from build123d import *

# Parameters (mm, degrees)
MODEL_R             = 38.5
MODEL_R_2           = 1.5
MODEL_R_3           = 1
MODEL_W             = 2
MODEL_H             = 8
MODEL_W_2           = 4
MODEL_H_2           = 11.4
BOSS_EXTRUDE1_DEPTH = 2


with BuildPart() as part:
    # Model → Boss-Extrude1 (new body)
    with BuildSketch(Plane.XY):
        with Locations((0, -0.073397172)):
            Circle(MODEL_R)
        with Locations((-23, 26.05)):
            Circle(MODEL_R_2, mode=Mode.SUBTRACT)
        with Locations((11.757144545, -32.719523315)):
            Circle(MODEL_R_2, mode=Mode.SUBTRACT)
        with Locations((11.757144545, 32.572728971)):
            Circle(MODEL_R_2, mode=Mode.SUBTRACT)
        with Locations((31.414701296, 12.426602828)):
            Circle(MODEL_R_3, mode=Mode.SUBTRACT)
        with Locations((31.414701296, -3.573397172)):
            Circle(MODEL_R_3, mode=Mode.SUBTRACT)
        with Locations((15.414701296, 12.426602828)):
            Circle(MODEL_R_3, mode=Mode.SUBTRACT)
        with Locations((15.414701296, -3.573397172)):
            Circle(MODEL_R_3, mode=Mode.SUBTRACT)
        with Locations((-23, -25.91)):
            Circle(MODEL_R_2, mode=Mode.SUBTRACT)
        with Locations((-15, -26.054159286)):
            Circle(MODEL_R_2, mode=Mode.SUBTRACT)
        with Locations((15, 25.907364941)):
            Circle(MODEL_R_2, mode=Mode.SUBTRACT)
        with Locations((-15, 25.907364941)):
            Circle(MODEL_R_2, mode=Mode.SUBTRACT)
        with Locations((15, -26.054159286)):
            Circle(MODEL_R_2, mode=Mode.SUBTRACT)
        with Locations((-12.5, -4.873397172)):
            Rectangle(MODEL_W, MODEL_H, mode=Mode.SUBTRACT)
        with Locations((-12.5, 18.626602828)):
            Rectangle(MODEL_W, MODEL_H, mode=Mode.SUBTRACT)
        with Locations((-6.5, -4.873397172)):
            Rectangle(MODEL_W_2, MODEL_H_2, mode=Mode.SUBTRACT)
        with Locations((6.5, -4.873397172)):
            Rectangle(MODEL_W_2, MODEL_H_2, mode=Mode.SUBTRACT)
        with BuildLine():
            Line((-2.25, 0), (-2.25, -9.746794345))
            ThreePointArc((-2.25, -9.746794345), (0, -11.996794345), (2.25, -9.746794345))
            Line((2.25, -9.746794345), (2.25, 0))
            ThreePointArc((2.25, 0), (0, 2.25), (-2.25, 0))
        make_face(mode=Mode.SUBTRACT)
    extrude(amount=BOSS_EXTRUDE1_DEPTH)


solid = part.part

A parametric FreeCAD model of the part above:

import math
import FreeCAD as App
import Part
import Sketcher

doc = App.newDocument("Part")
body = doc.addObject("PartDesign::Body", "Body")

# Sketch on XY plane
sketch1 = body.newObject("Sketcher::SketchObject", "Sketch")
sketch1.AttachmentSupport = (doc.getObject("XY_Plane"), [""])
sketch1.MapMode = "FlatFace"
sketch1.addGeometry([
    Part.Circle(App.Vector(0, -0.1, 0), App.Vector(0, 0, 1), 38.5),  # 0
    Part.Circle(App.Vector(-23, -25.9, 0), App.Vector(0, 0, 1), 1.5),  # 1
    Part.Circle(App.Vector(-15, -26.1, 0), App.Vector(0, 0, 1), 1.5),  # 2
    Part.LineSegment(App.Vector(-11.5, -8.9, 0), App.Vector(-13.5, -8.9, 0)),  # 3
    Part.LineSegment(App.Vector(-13.5, -8.9, 0), App.Vector(-13.5, -0.9, 0)),  # 4
    Part.LineSegment(App.Vector(-13.5, -0.9, 0), App.Vector(-11.5, -0.9, 0)),  # 5
    Part.LineSegment(App.Vector(-11.5, -0.9, 0), App.Vector(-11.5, -8.9, 0)),  # 6
    Part.LineSegment(App.Vector(-4.5, -10.6, 0), App.Vector(-8.5, -10.6, 0)),  # 7
    Part.LineSegment(App.Vector(-8.5, -10.6, 0), App.Vector(-8.5, 0.8, 0)),  # 8
    Part.LineSegment(App.Vector(-8.5, 0.8, 0), App.Vector(-4.5, 0.8, 0)),  # 9
    Part.LineSegment(App.Vector(-4.5, 0.8, 0), App.Vector(-4.5, -10.6, 0)),  # 10
    Part.LineSegment(App.Vector(-2.2, -9.7, 0), App.Vector(-2.2, 0, 0)),  # 11
    Part.ArcOfCircle(Part.Circle(App.Vector(0, 0, 0), App.Vector(0, 0, 1), 2.2), math.radians(0), math.radians(180)),  # 12
    Part.LineSegment(App.Vector(2.2, 0, 0), App.Vector(2.2, -9.7, 0)),  # 13
    Part.ArcOfCircle(Part.Circle(App.Vector(0, -9.7, 0), App.Vector(0, 0, 1), 2.2), math.radians(180), math.radians(360)),  # 14
    Part.Circle(App.Vector(11.8, -32.7, 0), App.Vector(0, 0, 1), 1.5),  # 15
    Part.Circle(App.Vector(15, -26.1, 0), App.Vector(0, 0, 1), 1.5),  # 16
    Part.LineSegment(App.Vector(8.5, -10.6, 0), App.Vector(4.5, -10.6, 0)),  # 17
    Part.LineSegment(App.Vector(4.5, -10.6, 0), App.Vector(4.5, 0.8, 0)),  # 18
    Part.LineSegment(App.Vector(4.5, 0.8, 0), App.Vector(8.5, 0.8, 0)),  # 19
    Part.LineSegment(App.Vector(8.5, 0.8, 0), App.Vector(8.5, -10.6, 0)),  # 20
    Part.Circle(App.Vector(15.4, -3.6, 0), App.Vector(0, 0, 1), 1),  # 21
    Part.Circle(App.Vector(31.4, -3.6, 0), App.Vector(0, 0, 1), 1),  # 22
    Part.LineSegment(App.Vector(-11.5, 14.6, 0), App.Vector(-13.5, 14.6, 0)),  # 23
    Part.LineSegment(App.Vector(-13.5, 14.6, 0), App.Vector(-13.5, 22.6, 0)),  # 24
    Part.LineSegment(App.Vector(-13.5, 22.6, 0), App.Vector(-11.5, 22.6, 0)),  # 25
    Part.LineSegment(App.Vector(-11.5, 22.6, 0), App.Vector(-11.5, 14.6, 0)),  # 26
    Part.Circle(App.Vector(-23, 26.1, 0), App.Vector(0, 0, 1), 1.5),  # 27
    Part.Circle(App.Vector(-15, 25.9, 0), App.Vector(0, 0, 1), 1.5),  # 28
    Part.Circle(App.Vector(15.4, 12.4, 0), App.Vector(0, 0, 1), 1),  # 29
    Part.Circle(App.Vector(31.4, 12.4, 0), App.Vector(0, 0, 1), 1),  # 30
    Part.Circle(App.Vector(15, 25.9, 0), App.Vector(0, 0, 1), 1.5),  # 31
    Part.Circle(App.Vector(11.8, 32.6, 0), App.Vector(0, 0, 1), 1.5),  # 32
], False)
sketch1.addConstraint([
    Sketcher.Constraint("Coincident", 3, 2, 4, 1),
    Sketcher.Constraint("Coincident", 4, 2, 5, 1),
    Sketcher.Constraint("Coincident", 5, 2, 6, 1),
    Sketcher.Constraint("Coincident", 6, 2, 3, 1),
    Sketcher.Constraint("Coincident", 7, 2, 8, 1),
    Sketcher.Constraint("Coincident", 8, 2, 9, 1),
    Sketcher.Constraint("Coincident", 9, 2, 10, 1),
    Sketcher.Constraint("Coincident", 10, 2, 7, 1),
    Sketcher.Constraint("Tangent", 11, 2, 12, 2),
    Sketcher.Constraint("Tangent", 12, 1, 13, 1),
    Sketcher.Constraint("Tangent", 13, 2, 14, 2),
    Sketcher.Constraint("Tangent", 14, 1, 11, 1),
    Sketcher.Constraint("Coincident", 17, 2, 18, 1),
    Sketcher.Constraint("Coincident", 18, 2, 19, 1),
    Sketcher.Constraint("Coincident", 19, 2, 20, 1),
    Sketcher.Constraint("Coincident", 20, 2, 17, 1),
    Sketcher.Constraint("Coincident", 23, 2, 24, 1),
    Sketcher.Constraint("Coincident", 24, 2, 25, 1),
    Sketcher.Constraint("Coincident", 25, 2, 26, 1),
    Sketcher.Constraint("Coincident", 26, 2, 23, 1),
    Sketcher.Constraint("Horizontal", 3),
    Sketcher.Constraint("Vertical", 4),
    Sketcher.Constraint("Horizontal", 5),
    Sketcher.Constraint("Vertical", 6),
    Sketcher.Constraint("Horizontal", 7),
    Sketcher.Constraint("Vertical", 8),
    Sketcher.Constraint("Horizontal", 9),
    Sketcher.Constraint("Vertical", 10),
    Sketcher.Constraint("Vertical", 11),
    Sketcher.Constraint("Vertical", 13),
    Sketcher.Constraint("Horizontal", 17),
    Sketcher.Constraint("Vertical", 18),
    Sketcher.Constraint("Horizontal", 19),
    Sketcher.Constraint("Vertical", 20),
    Sketcher.Constraint("Horizontal", 23),
    Sketcher.Constraint("Vertical", 24),
    Sketcher.Constraint("Horizontal", 25),
    Sketcher.Constraint("Vertical", 26),
    Sketcher.Constraint("Coincident", 12, 3, -1, 1),
    Sketcher.Constraint("Equal", 1, 2),
    Sketcher.Constraint("Equal", 2, 15),
    Sketcher.Constraint("Equal", 15, 16),
    Sketcher.Constraint("Equal", 21, 22),
    Sketcher.Constraint("Equal", 16, 27),
    Sketcher.Constraint("Equal", 27, 28),
    Sketcher.Constraint("Equal", 22, 29),
    Sketcher.Constraint("Equal", 29, 30),
    Sketcher.Constraint("Equal", 28, 31),
    Sketcher.Constraint("Equal", 31, 32),
    Sketcher.Constraint("Symmetric", 2, 3, 16, 3, -2),
    Sketcher.Constraint("Symmetric", 28, 3, 31, 3, -2),
    Sketcher.Constraint("Symmetric", 10, 2, 17, 2, -2),
    Sketcher.Constraint("Symmetric", 8, 2, 19, 2, -2),
    Sketcher.Constraint("PointOnObject", 0, 3, -2),
    Sketcher.Constraint("Horizontal", 21, 3, 22, 3),
    Sketcher.Constraint("Horizontal", 29, 3, 30, 3),
    Sketcher.Constraint("Vertical", 1, 3, 27, 3),
    Sketcher.Constraint("Vertical", 2, 3, 28, 3),
    Sketcher.Constraint("Vertical", 21, 3, 29, 3),
    Sketcher.Constraint("Vertical", 22, 3, 30, 3),
    Sketcher.Constraint("Vertical", 15, 3, 32, 3),
    Sketcher.Constraint("Vertical", 4, 2, 23, 2),
    Sketcher.Constraint("Vertical", 6, 2, 25, 2),
    Sketcher.Constraint("Equal", 6, 24),
    Sketcher.Constraint("Diameter", 0, 77.0),
    Sketcher.Constraint("Diameter", 1, 3.0),
    Sketcher.Constraint("Diameter", 21, 2.0),
    Sketcher.Constraint("DistanceX", 3, 2, 3, 1, 2.0),
    Sketcher.Constraint("DistanceX", 7, 2, 7, 1, 4.0),
    Sketcher.Constraint("DistanceY", 4, 1, 4, 2, 8.0),
    Sketcher.Constraint("Radius", 12, 2.25),
    Sketcher.Constraint("DistanceY", 8, 1, 8, 2, 11.4),
    Sketcher.Constraint("DistanceX", 1, 3, -1, 1, 23.0),
    Sketcher.Constraint("DistanceX", 2, 3, -1, 1, 15.0),
    Sketcher.Constraint("DistanceX", 21, 3, 22, 3, 16.0),
    Sketcher.Constraint("DistanceY", 21, 3, 29, 3, 16.0),
    Sketcher.Constraint("DistanceX", 6, 2, 7, 2, 3.0),
    Sketcher.Constraint("DistanceX", 10, 2, 17, 2, 9.0),
    Sketcher.Constraint("DistanceY", 20, 2, 21, 3, 7.0),
    Sketcher.Constraint("DistanceY", 21, 3, 0, 3, 3.5),
    Sketcher.Constraint("DistanceY", 3, 2, 0, 3, 8.8),
    Sketcher.Constraint("DistanceY", 8, 2, 23, 2, 13.8),
    Sketcher.Constraint("DistanceY", 1, 3, -1, 1, 25.91),
    Sketcher.Constraint("DistanceY", -1, 1, 27, 3, 26.05),
    Sketcher.Constraint("DistanceX", -1, 1, 21, 3, 15.414701),
    Sketcher.Constraint("DistanceY", 11, 1, 11, 2, 9.746794),
    Sketcher.Constraint("DistanceY", 2, 3, -1, 1, 26.054159),
    Sketcher.Constraint("DistanceY", -1, 1, 32, 3, 32.572729),
    Sketcher.Constraint("DistanceY", 15, 3, 14, 3, 22.972729),
    Sketcher.Constraint("DistanceY", 14, 3, 28, 3, 35.654159),
    Sketcher.Constraint("DistanceY", 0, 3, -1, 1, 0.073397),
    Sketcher.Constraint("DistanceX", -1, 1, 15, 3, 11.757145),
])
pad1 = body.newObject("PartDesign::Pad", "Pad")
pad1.Profile = sketch1
pad1.Length = 2

doc.recompute()
